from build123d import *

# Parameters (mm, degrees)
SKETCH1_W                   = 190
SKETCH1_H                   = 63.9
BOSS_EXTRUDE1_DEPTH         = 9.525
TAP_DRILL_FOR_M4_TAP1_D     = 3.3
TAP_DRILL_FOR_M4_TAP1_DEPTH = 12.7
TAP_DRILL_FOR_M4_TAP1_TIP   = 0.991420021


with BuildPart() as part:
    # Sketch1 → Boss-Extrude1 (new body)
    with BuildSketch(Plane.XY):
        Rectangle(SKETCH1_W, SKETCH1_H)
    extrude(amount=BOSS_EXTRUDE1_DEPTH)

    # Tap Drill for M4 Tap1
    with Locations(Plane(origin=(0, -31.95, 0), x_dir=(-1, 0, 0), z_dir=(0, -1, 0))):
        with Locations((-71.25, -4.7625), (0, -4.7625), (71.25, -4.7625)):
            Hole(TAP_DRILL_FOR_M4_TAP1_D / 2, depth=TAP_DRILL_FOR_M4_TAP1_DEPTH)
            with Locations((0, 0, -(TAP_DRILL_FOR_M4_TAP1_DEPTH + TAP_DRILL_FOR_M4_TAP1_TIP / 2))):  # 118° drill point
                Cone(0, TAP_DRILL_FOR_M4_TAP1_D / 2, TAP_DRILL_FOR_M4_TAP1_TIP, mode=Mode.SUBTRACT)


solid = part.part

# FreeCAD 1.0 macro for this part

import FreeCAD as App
import Part
import Sketcher
from FreeCAD import Vector

doc = App.newDocument("Part")
params = doc.addObject("Spreadsheet::Sheet", "Params")
for row, (alias, value) in enumerate([
    ("sketch1_width", "190 mm"),
    ("sketch1_height", "63.9 mm"),
    ("pad1_length", "9.525 mm"),
    ("sketch2_diameter", "3.3 mm"),
    ("hole_diameter", "3.3 mm"),
    ("hole_depth", "12.7 mm"),
], start=1):
    params.set(f"A{row}", alias)
    params.set(f"B{row}", "=" + value)
    params.setAlias(f"B{row}", alias)

body = doc.addObject("PartDesign::Body", "Body")

sketch1 = body.newObject("Sketcher::SketchObject", "Sketch")
sketch1.AttachmentSupport = (doc.getObject("XY_Plane"), [""])
sketch1.MapMode = "FlatFace"
sketch1.addGeometry([
    Part.LineSegment(Vector(-95, 31.95, 0), Vector(-95, -31.95, 0)),
    Part.LineSegment(Vector(-95, -31.95, 0), Vector(95, -31.95, 0)),
    Part.LineSegment(Vector(95, -31.95, 0), Vector(95, 31.95, 0)),
    Part.LineSegment(Vector(95, 31.95, 0), Vector(-95, 31.95, 0)),
], False)
sketch1.addConstraint([
    Sketcher.Constraint("Coincident", 0, 2, 1, 1),
    Sketcher.Constraint("Coincident", 1, 2, 2, 1),
    Sketcher.Constraint("Coincident", 2, 2, 3, 1),
    Sketcher.Constraint("Coincident", 3, 2, 0, 1),
    Sketcher.Constraint("Vertical", 0),
    Sketcher.Constraint("Horizontal", 1),
    Sketcher.Constraint("Vertical", 2),
    Sketcher.Constraint("Horizontal", 3),
    Sketcher.Constraint("Symmetric", 0, 2, 2, 2, -1, 1),
    Sketcher.Constraint("DistanceX", 1, 1, 1, 2, 190.0),
    Sketcher.Constraint("DistanceY", 0, 2, 0, 1, 63.9),
])
sketch1.setExpression("Constraints[9]", "Params.sketch1_width")
sketch1.setExpression("Constraints[10]", "Params.sketch1_height")
pad1 = body.newObject("PartDesign::Pad", "Pad")
pad1.Profile = sketch1
pad1.setExpression("Length", "Params.pad1_length")

sketch2 = body.newObject("Sketcher::SketchObject", "Sketch001")
sketch2.AttachmentSupport = (doc.getObject("XZ_Plane"), [""])
sketch2.MapMode = "FlatFace"
sketch2.AttachmentOffset = App.Placement(Vector(0, 0, 31.95), App.Rotation())
sketch2.addGeometry([
    Part.Circle(Vector(71.25, 4.7625, 0), Vector(0, 0, 1), 1.65),
    Part.Circle(Vector(0, 4.7625, 0), Vector(0, 0, 1), 1.65),
    Part.Circle(Vector(-71.25, 4.7625, 0), Vector(0, 0, 1), 1.65),
], False)
sketch2.addConstraint([
    Sketcher.Constraint("Equal", 0, 1),
    Sketcher.Constraint("Equal", 1, 2),
    Sketcher.Constraint("Symmetric", 0, 3, 2, 3, -2),
    Sketcher.Constraint("PointOnObject", 1, 3, -2),
    Sketcher.Constraint("Horizontal", 0, 3, 1, 3),
    Sketcher.Constraint("Diameter", 0, 3.3),
    Sketcher.Constraint("DistanceX", 2, 3, 0, 3, 142.5),
    Sketcher.Constraint("DistanceY", -1, 1, 0, 3, 4.7625),
])
sketch2.setExpression("Constraints[5]", "Params.sketch2_diameter")
doc.recompute()
hole = body.newObject("PartDesign::Hole", "Hole")
hole.Profile = sketch2
hole.ThreadType = "None"
hole.setExpression("Diameter", "Params.hole_diameter")
hole.DepthType = "Dimension"
hole.setExpression("Depth", "Params.hole_depth")
hole.DrillPoint = "Angled"
hole.DrillPointAngle = 118

doc.recompute()
